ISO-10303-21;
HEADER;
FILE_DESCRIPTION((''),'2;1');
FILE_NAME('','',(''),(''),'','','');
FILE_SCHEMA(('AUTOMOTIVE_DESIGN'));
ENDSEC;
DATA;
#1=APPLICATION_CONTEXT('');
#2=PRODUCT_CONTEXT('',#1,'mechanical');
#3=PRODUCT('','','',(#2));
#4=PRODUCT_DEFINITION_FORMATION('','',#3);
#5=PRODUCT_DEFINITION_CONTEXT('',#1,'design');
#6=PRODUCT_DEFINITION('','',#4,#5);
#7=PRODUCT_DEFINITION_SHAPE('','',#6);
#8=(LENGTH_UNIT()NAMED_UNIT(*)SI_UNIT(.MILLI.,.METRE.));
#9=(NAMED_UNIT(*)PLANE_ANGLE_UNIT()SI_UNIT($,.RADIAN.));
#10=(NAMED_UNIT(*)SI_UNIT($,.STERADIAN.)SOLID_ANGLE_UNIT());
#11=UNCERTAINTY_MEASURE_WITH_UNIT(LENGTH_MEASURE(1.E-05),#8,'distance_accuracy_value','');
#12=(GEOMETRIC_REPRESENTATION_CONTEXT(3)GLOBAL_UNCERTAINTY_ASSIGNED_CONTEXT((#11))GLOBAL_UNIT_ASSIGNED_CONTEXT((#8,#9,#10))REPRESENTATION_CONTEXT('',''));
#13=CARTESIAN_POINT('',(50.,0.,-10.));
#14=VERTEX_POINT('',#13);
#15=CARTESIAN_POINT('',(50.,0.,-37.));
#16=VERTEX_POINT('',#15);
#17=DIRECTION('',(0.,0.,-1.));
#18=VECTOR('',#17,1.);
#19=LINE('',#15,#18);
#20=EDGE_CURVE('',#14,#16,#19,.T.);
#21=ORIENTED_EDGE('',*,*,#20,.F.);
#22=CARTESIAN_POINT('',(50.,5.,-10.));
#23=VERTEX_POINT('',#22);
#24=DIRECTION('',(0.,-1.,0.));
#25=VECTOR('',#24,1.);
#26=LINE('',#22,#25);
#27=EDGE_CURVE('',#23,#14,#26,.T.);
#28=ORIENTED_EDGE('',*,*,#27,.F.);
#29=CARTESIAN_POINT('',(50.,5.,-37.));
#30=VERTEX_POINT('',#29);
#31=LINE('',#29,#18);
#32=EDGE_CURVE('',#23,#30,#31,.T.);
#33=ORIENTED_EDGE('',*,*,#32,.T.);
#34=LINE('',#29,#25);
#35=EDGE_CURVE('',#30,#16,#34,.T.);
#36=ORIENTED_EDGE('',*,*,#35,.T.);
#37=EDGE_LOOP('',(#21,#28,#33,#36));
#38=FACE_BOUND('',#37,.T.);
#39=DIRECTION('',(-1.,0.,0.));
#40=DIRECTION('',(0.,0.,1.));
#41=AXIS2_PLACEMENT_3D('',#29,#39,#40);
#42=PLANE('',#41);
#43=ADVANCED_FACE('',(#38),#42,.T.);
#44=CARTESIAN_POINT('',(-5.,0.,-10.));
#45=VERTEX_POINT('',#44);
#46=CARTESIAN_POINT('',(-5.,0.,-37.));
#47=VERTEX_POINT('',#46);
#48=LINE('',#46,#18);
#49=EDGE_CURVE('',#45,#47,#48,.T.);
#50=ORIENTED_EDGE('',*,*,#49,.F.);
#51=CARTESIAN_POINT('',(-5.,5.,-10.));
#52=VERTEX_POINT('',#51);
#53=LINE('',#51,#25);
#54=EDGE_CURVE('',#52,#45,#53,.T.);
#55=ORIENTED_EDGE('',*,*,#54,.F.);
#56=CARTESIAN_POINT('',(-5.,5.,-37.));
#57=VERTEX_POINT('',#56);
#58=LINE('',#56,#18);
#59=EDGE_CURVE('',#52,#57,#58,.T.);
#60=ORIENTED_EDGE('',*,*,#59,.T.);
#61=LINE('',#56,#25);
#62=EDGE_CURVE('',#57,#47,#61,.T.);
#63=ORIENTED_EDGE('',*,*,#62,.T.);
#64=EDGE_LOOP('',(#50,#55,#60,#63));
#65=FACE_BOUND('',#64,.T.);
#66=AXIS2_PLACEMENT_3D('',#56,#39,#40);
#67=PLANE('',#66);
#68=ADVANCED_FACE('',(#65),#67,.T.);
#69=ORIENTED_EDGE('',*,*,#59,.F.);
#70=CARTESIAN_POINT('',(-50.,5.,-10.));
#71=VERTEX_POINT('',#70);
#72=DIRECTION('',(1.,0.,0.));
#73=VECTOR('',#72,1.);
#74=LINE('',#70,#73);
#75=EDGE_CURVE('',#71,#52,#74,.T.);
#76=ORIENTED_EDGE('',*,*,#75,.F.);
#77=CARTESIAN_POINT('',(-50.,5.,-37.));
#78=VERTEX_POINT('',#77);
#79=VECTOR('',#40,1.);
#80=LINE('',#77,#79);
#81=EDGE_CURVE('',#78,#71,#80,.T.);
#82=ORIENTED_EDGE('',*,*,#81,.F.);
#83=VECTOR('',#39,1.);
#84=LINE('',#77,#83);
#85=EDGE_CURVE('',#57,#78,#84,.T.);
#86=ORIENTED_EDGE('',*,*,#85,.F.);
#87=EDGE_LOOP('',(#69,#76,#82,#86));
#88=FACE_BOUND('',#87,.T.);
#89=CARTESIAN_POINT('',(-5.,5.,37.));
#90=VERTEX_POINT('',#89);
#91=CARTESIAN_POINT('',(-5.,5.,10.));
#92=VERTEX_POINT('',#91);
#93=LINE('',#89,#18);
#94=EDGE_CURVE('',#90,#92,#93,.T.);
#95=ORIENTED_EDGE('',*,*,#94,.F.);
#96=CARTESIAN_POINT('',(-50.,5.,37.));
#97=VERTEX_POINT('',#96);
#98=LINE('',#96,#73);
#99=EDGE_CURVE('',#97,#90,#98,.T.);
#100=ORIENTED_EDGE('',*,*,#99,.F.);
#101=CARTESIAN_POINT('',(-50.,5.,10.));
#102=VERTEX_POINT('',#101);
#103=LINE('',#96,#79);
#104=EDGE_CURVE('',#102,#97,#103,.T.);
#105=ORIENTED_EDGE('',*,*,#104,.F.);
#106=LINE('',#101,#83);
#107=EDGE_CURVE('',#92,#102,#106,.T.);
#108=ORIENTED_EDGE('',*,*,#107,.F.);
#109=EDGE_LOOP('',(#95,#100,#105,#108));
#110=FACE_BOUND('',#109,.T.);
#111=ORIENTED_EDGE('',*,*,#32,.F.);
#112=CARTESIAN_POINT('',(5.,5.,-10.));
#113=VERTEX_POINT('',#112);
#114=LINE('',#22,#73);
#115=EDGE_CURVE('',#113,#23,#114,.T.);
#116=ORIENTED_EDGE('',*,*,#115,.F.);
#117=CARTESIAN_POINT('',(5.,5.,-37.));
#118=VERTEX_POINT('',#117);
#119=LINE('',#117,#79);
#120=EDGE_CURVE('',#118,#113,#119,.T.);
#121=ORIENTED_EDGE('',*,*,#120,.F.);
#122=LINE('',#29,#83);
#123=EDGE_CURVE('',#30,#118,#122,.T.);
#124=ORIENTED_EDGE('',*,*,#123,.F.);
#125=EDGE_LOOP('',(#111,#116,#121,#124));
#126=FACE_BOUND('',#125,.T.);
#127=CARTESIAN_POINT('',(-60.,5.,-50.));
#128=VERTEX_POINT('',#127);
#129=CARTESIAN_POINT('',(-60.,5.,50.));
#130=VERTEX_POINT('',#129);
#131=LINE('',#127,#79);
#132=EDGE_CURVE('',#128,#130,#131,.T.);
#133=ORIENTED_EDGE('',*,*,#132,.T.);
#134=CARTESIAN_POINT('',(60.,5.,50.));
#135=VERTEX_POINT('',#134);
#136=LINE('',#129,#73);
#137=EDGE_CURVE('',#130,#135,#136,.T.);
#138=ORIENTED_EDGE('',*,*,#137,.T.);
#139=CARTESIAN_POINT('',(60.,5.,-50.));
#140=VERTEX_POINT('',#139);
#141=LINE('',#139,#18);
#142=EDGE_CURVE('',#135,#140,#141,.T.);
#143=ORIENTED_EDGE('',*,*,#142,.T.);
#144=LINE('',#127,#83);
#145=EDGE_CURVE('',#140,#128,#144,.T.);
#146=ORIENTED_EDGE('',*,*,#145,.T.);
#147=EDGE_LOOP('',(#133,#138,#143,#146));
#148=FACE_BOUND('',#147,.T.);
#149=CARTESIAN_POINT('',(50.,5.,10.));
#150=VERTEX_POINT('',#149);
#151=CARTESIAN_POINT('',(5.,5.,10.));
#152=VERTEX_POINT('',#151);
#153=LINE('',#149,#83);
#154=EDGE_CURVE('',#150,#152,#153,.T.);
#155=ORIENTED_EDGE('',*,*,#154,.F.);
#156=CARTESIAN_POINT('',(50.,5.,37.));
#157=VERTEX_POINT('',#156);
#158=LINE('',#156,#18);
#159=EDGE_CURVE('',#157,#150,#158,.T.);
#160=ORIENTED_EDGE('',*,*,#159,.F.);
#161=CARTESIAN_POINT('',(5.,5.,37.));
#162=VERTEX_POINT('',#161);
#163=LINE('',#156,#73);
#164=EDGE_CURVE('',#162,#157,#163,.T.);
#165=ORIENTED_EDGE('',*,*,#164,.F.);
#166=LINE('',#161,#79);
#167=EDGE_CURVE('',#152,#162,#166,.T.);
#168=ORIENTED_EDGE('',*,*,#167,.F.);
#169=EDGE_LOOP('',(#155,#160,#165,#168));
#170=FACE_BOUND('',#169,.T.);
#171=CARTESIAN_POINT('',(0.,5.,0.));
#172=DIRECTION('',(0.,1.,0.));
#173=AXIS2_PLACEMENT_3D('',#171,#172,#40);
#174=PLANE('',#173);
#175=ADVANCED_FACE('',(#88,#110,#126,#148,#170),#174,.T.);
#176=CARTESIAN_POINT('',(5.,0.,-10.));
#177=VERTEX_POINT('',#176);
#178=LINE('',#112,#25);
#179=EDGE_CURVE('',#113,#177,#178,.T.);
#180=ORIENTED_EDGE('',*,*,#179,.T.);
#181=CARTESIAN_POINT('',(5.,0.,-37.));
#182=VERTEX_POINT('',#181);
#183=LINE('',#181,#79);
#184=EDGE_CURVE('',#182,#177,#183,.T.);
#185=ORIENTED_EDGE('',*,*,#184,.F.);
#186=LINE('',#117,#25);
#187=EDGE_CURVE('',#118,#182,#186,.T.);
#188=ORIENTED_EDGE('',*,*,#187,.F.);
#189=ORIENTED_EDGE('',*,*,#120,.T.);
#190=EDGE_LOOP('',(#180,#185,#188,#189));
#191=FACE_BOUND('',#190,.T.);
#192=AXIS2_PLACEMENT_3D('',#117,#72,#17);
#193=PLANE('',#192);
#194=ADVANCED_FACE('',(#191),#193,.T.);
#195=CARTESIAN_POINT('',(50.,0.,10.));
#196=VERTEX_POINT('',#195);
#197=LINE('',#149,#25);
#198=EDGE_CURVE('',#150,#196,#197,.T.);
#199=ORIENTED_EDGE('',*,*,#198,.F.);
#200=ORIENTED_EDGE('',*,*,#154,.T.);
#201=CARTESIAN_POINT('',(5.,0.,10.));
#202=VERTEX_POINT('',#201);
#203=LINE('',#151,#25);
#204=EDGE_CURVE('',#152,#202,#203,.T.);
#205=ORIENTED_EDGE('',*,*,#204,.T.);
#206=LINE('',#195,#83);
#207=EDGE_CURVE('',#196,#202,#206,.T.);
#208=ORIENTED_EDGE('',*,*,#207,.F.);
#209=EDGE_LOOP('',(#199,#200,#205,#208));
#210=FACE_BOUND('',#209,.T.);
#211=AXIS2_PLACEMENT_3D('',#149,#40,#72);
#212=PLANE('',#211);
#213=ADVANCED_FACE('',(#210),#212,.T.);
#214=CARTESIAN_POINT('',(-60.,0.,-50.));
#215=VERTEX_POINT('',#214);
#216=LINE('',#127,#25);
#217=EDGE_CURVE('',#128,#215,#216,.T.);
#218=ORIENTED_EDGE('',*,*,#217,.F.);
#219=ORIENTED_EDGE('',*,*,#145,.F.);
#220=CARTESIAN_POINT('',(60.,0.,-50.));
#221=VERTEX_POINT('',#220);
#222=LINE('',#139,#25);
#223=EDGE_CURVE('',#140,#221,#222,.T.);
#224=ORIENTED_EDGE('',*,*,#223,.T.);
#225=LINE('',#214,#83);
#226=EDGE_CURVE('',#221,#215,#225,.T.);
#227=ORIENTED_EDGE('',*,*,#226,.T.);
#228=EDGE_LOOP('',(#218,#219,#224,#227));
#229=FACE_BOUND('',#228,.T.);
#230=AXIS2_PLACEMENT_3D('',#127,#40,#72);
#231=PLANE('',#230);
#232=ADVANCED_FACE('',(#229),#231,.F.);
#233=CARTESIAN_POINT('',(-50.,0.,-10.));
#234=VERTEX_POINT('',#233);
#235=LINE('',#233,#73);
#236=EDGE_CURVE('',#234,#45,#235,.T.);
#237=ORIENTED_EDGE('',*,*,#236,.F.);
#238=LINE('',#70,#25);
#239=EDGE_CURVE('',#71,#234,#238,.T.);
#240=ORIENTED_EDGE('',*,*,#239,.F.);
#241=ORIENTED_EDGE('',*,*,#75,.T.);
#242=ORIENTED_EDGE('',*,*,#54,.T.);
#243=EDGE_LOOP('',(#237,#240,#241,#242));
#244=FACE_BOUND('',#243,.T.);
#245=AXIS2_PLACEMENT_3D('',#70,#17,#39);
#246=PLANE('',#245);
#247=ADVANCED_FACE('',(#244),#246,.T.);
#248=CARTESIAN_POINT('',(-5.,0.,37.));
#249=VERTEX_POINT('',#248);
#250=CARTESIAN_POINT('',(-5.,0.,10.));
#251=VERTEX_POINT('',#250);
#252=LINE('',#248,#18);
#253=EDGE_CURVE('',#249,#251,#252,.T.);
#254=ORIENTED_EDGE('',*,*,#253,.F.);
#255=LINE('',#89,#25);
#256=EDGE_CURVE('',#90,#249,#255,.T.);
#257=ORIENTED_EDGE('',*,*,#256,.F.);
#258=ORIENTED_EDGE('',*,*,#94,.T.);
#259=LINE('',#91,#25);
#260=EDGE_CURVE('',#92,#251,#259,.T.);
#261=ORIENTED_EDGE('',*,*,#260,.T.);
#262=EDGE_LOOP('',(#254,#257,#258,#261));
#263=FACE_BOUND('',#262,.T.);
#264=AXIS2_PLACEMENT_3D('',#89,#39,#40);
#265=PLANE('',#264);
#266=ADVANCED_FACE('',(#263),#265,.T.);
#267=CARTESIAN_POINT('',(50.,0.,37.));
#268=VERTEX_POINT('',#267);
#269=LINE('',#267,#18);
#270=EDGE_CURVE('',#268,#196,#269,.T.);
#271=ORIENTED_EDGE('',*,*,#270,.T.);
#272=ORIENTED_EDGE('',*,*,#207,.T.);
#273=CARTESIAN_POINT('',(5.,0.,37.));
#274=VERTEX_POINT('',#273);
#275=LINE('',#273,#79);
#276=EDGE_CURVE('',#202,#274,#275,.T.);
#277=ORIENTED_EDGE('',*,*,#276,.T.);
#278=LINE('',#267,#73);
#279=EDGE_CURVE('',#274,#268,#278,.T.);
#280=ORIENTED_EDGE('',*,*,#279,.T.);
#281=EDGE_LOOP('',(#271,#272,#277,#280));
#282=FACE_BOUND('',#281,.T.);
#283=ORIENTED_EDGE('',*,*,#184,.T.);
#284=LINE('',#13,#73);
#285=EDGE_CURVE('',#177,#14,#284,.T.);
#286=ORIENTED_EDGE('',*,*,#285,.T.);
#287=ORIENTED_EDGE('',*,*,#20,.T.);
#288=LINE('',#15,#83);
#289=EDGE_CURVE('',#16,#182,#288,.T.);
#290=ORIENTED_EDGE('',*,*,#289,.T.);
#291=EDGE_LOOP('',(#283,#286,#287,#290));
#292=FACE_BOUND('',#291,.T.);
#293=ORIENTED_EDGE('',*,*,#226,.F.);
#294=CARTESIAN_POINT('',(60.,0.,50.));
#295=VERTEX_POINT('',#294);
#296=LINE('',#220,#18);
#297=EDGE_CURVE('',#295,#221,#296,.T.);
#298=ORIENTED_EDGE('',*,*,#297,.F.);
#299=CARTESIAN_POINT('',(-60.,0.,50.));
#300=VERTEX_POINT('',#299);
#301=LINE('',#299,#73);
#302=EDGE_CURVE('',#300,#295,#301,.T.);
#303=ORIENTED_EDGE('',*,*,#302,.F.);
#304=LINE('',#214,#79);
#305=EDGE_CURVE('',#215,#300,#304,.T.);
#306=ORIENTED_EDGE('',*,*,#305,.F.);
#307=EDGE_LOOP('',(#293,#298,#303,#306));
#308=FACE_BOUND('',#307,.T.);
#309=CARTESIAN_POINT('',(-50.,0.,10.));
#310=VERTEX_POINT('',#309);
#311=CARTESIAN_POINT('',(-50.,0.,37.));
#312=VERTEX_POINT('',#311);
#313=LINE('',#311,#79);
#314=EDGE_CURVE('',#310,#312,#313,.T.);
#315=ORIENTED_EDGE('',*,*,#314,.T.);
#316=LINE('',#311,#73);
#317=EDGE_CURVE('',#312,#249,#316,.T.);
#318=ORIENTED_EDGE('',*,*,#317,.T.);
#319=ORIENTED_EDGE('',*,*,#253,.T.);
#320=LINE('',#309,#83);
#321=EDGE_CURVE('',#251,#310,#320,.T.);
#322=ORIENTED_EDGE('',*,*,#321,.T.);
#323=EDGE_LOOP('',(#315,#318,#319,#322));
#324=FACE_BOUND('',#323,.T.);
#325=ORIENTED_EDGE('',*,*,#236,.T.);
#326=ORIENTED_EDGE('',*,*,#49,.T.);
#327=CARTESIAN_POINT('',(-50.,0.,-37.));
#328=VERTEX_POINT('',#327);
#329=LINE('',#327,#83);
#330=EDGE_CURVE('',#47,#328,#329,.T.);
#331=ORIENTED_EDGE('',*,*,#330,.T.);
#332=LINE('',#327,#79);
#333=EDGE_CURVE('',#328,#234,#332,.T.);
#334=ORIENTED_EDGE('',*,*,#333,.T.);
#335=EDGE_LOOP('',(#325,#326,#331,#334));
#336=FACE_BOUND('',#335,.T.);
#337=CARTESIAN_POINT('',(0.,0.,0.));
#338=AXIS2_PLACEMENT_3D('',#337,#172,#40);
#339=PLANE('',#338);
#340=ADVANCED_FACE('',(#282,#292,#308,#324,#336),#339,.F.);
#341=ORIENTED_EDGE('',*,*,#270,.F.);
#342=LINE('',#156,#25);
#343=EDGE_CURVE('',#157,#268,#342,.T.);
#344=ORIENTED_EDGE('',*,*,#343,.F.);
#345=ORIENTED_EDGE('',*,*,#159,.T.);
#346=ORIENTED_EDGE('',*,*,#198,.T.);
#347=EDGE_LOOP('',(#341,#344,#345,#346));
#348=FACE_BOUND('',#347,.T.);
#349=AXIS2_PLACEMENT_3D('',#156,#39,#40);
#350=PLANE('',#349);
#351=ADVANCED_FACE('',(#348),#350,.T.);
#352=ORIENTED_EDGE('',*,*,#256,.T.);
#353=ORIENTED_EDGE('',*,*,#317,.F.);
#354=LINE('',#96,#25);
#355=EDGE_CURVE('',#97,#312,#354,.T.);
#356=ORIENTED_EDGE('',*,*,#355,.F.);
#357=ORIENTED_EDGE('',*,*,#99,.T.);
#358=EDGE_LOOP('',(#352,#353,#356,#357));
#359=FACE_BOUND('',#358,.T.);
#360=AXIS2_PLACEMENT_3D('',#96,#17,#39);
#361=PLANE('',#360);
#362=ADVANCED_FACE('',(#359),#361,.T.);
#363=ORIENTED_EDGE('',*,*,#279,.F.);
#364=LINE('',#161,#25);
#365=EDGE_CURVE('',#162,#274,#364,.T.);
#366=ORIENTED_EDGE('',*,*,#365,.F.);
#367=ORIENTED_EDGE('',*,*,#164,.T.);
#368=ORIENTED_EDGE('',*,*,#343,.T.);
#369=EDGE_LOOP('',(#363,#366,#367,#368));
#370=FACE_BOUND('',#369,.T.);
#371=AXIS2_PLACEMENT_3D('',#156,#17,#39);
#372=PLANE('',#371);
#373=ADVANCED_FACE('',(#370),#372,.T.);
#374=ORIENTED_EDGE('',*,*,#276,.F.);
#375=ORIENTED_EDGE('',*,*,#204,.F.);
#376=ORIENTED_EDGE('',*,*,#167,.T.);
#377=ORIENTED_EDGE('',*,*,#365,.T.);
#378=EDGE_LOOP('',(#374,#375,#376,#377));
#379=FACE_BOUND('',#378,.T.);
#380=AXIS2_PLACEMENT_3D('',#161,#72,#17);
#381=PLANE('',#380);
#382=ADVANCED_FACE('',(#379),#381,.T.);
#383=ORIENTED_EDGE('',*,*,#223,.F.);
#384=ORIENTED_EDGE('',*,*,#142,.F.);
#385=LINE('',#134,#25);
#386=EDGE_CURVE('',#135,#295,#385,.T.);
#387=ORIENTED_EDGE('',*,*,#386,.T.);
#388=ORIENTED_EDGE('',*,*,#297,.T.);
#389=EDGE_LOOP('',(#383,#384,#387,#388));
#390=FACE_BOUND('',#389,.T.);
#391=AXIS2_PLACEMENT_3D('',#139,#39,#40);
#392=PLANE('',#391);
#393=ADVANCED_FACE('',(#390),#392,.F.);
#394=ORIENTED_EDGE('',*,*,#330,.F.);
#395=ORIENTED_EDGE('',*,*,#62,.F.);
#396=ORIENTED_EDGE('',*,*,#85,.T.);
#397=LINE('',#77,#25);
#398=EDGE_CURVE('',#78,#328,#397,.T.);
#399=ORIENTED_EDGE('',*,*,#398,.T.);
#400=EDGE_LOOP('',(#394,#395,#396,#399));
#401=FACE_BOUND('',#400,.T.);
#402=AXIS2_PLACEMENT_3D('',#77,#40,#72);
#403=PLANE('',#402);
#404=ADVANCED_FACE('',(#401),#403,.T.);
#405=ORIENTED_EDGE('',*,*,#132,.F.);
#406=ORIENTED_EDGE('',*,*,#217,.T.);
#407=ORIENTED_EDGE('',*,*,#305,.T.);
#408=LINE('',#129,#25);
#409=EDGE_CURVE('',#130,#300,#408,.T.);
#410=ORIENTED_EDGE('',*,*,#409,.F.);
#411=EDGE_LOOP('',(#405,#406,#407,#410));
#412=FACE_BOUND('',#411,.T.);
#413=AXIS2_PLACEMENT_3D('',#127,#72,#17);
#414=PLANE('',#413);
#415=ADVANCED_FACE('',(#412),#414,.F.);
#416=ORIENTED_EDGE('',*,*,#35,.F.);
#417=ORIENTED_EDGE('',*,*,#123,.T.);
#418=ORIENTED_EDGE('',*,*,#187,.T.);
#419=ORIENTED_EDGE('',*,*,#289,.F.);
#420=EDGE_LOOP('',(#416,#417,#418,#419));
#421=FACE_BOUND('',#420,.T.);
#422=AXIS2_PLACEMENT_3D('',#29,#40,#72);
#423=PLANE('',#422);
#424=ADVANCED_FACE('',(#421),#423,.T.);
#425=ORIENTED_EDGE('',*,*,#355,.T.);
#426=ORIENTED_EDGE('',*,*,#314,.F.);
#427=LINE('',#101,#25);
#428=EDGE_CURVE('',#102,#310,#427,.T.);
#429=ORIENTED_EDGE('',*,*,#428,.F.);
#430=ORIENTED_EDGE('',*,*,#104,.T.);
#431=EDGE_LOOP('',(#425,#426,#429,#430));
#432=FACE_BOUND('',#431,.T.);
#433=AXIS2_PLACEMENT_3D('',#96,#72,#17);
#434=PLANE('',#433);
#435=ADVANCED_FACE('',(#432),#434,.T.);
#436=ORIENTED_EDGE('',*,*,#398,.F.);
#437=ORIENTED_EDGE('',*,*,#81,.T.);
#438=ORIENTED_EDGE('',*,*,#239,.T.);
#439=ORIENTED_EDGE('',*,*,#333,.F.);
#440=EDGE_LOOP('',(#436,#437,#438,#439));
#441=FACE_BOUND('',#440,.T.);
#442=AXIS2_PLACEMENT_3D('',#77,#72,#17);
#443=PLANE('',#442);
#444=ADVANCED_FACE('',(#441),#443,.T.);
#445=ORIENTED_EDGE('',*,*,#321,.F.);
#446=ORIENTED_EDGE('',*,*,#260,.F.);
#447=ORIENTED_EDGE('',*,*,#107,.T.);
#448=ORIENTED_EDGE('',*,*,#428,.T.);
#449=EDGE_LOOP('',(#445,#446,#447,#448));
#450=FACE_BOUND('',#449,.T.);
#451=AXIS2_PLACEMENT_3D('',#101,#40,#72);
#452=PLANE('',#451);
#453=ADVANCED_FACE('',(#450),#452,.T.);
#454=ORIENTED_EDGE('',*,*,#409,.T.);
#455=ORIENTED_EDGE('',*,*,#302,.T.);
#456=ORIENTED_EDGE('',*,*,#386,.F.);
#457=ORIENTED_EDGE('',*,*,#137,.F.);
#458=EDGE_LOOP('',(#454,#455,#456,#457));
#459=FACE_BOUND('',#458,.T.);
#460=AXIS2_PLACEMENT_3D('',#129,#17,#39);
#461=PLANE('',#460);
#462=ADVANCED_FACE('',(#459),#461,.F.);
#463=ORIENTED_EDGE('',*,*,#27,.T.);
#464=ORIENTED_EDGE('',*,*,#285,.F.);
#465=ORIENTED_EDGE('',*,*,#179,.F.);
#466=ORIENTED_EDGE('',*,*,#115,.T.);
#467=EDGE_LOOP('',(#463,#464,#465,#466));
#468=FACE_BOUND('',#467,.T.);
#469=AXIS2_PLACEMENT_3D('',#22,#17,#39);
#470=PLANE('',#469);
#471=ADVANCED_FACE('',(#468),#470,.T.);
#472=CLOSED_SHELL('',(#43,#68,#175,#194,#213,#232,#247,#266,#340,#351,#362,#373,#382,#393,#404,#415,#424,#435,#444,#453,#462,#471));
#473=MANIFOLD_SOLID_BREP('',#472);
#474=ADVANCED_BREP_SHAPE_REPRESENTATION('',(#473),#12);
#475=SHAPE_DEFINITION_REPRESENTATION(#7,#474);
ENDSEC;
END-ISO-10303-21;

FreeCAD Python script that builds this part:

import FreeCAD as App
import Part
import Sketcher

V = App.Vector
Q = App.Units.Quantity


def add_polygon(sketch, points):
    """Adds a closed chain of lines whose ends are joined by coincident constraints."""
    first, n = sketch.GeometryCount, len(points)
    for a, b in zip(points, points[1:] + points[:1]):
        sketch.addGeometry(Part.LineSegment(App.Vector(*a, 0), App.Vector(*b, 0)), False)
    for i in range(n):
        sketch.addConstraint(Sketcher.Constraint("Coincident", first + i, 2, first + (i + 1) % n, 1))

doc = App.newDocument("Part")
body = doc.addObject("PartDesign::Body", "Body")

sketch1 = doc.addObject("Sketcher::SketchObject", "Sketch")
body.addObject(sketch1)
sketch1.AttachmentSupport = (doc.XZ_Plane, [""])
sketch1.MapMode = "FlatFace"
add_polygon(sketch1, [(-60, -50), (-60, 50), (60, 50), (60, -50)])
add_polygon(sketch1, [(-5, 37), (-50, 37), (-50, 10), (-5, 10)])
add_polygon(sketch1, [(50, 37), (5, 37), (5, 10), (50, 10)])
add_polygon(sketch1, [(-5, -10), (-50, -10), (-50, -37), (-5, -37)])
add_polygon(sketch1, [(50, -10), (5, -10), (5, -37), (50, -37)])
sketch1.addConstraint([
    Sketcher.Constraint("Vertical", 0),
    Sketcher.Constraint("Horizontal", 1),
    Sketcher.Constraint("Vertical", 2),
    Sketcher.Constraint("Horizontal", 3),
    Sketcher.Constraint("Horizontal", 4),
    Sketcher.Constraint("Vertical", 5),
    Sketcher.Constraint("Horizontal", 6),
    Sketcher.Constraint("Vertical", 7),
    Sketcher.Constraint("Horizontal", 8),
    Sketcher.Constraint("Vertical", 9),
    Sketcher.Constraint("Horizontal", 10),
    Sketcher.Constraint("Vertical", 11),
    Sketcher.Constraint("Horizontal", 12),
    Sketcher.Constraint("Vertical", 13),
    Sketcher.Constraint("Horizontal", 14),
    Sketcher.Constraint("Vertical", 15),
    Sketcher.Constraint("Horizontal", 16),
    Sketcher.Constraint("Vertical", 17),
    Sketcher.Constraint("Horizontal", 18),
    Sketcher.Constraint("Vertical", 19),
    Sketcher.Constraint("Symmetric", 0, 2, 2, 2, -1, 1),
    Sketcher.Constraint("Symmetric", 10, 2, 12, 2, -1, 1),
    Sketcher.Constraint("Symmetric", 8, 2, 14, 2, -1, 1),
    Sketcher.Constraint("Symmetric", 6, 2, 16, 2, -1, 1),
    Sketcher.Constraint("Symmetric", 4, 2, 18, 2, -1, 1),
    Sketcher.Constraint("Symmetric", 7, 2, 8, 2, -2),
    Sketcher.Constraint("Symmetric", 5, 2, 10, 2, -2),
    Sketcher.Constraint("DistanceX", 1, 1, 1, 2, Q("120 mm")),
    Sketcher.Constraint("DistanceX", 4, 2, 4, 1, Q("45 mm")),
    Sketcher.Constraint("DistanceY", 0, 1, 0, 2, Q("100 mm")),
    Sketcher.Constraint("DistanceY", 5, 2, 5, 1, Q("27 mm")),
    Sketcher.Constraint("DistanceX", 4, 2, -1, 1, Q("50 mm")),
    Sketcher.Constraint("DistanceY", -1, 1, 4, 2, Q("37 mm")),
])
pad1 = doc.addObject("PartDesign::Pad", "Pad")
body.addObject(pad1)
pad1.Profile = sketch1
pad1.Length = 5
pad1.Reversed = True

doc.recompute()
